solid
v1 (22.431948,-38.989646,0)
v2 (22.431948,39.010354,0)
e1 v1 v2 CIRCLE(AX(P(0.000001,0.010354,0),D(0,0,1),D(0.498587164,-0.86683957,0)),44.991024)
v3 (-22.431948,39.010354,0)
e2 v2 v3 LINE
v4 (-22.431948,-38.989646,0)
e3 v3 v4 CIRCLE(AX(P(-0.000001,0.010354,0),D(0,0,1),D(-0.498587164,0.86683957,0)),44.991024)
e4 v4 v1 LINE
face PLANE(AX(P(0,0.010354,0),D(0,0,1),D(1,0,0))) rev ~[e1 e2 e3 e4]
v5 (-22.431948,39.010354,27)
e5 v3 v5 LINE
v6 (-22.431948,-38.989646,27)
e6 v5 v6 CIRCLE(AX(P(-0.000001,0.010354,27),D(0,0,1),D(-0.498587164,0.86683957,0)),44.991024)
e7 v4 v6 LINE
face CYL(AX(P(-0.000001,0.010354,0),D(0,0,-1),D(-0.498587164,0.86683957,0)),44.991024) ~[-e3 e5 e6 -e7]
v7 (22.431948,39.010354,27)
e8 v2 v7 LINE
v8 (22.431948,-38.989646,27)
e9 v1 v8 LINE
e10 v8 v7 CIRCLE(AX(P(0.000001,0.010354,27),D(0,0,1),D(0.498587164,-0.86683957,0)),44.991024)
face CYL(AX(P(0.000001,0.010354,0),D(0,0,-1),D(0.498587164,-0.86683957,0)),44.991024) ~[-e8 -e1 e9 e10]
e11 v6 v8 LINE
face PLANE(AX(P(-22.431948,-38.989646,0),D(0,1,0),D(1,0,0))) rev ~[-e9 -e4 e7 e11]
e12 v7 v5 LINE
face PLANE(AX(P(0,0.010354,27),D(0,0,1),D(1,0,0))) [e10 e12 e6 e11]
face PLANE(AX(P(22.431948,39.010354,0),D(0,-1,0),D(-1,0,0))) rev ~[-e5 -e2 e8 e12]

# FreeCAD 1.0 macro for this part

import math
import FreeCAD as App
import Part
import Sketcher

V = App.Vector
Q = App.Units.Quantity

doc = App.newDocument("Part")
body = doc.addObject("PartDesign::Body", "Body")

# Sketch on XY plane
sketch1 = body.newObject("Sketcher::SketchObject", "Sketch")
sketch1.AttachmentSupport = (doc.getObject("XY_Plane"), [""])
sketch1.MapMode = "FlatFace"
sketch1.addGeometry(Part.ArcOfCircle(Part.Circle(V(0, 0, 0), V(0, 0, 1), 45), math.radians(-60), math.radians(60)), False)
sketch1.addGeometry(Part.LineSegment(V(22, 39, 0), V(-22, 39, 0)), False)
sketch1.addGeometry(Part.ArcOfCircle(Part.Circle(V(0, 0, 0), V(0, 0, 1), 45), math.radians(120), math.radians(240)), False)
sketch1.addGeometry(Part.LineSegment(V(-22, -39, 0), V(22, -39, 0)), False)
sketch1.addConstraint(Sketcher.Constraint("Coincident", 0, 2, 1, 1))
sketch1.addConstraint(Sketcher.Constraint("Coincident", 1, 2, 2, 1))
sketch1.addConstraint(Sketcher.Constraint("Coincident", 2, 2, 3, 1))
sketch1.addConstraint(Sketcher.Constraint("Coincident", 3, 2, 0, 1))
sketch1.addConstraint(Sketcher.Constraint("Horizontal", 1))
sketch1.addConstraint(Sketcher.Constraint("Horizontal", 3))
sketch1.addConstraint(Sketcher.Constraint("Coincident", 2, 3, 0, 3))
sketch1.addConstraint(Sketcher.Constraint("Equal", 0, 2))
sketch1.addConstraint(Sketcher.Constraint("PointOnObject", 0, 3, -2))
sketch1.addConstraint(Sketcher.Constraint("Vertical", 1, 2, 2, 2))
sketch1.addConstraint(Sketcher.Constraint("DistanceY", 0, 3, 0, 2, Q("39 mm")))
sketch1.addConstraint(Sketcher.Constraint("Radius", 0, Q("44.991024 mm")))
sketch1.addConstraint(Sketcher.Constraint("DistanceY", -1, 1, 0, 3, Q("0.010354 mm")))
pad1 = body.newObject("PartDesign::Pad", "Pad")
pad1.Profile = sketch1
pad1.Length = 27

doc.recompute()
